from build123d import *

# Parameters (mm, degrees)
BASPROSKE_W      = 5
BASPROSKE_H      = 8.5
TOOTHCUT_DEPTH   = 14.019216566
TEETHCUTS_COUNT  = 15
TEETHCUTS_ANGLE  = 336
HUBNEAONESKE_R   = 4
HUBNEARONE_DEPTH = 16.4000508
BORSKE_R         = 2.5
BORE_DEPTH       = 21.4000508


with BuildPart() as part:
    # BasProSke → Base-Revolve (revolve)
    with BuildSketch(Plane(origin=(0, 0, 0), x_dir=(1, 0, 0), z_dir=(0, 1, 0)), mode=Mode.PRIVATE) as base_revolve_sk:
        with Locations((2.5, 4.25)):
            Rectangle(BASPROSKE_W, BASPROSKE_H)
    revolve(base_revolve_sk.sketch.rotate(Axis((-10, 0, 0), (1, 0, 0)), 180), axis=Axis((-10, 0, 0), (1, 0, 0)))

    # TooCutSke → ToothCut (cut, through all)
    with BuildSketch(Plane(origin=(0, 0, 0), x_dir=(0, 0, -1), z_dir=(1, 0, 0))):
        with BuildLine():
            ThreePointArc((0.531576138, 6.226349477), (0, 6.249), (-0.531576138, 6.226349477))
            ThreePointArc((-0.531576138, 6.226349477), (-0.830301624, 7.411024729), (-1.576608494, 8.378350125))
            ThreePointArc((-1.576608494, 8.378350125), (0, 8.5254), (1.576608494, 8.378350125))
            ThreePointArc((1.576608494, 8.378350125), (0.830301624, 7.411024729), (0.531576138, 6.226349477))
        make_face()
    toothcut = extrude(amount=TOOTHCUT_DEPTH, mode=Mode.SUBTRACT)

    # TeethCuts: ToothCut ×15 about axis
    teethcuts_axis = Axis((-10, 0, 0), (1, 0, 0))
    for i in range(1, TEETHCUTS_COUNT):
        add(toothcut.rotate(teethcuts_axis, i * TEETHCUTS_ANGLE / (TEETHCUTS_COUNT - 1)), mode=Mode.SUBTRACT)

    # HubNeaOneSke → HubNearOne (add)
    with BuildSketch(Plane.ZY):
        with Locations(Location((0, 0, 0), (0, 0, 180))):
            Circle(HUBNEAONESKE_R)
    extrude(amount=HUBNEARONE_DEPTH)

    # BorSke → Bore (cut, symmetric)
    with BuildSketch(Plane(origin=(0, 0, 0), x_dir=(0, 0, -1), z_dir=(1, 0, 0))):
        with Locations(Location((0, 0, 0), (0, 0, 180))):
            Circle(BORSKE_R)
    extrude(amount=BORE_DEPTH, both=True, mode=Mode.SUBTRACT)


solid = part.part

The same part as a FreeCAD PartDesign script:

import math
import FreeCAD as App
import Part
import Sketcher

V = App.Vector
Q = App.Units.Quantity

doc = App.newDocument("Part")
body = doc.addObject("PartDesign::Body", "Body")

# Sketch on XZ plane
sketch1 = body.newObject("Sketcher::SketchObject", "Sketch")
sketch1.AttachmentSupport = (doc.getObject("XZ_Plane"), [""])
sketch1.MapMode = "FlatFace"
sketch1.addGeometry([
    Part.LineSegment(V(0, -8, 0), V(0, 0, 0)),
    Part.LineSegment(V(0, 0, 0), V(5, 0, 0)),
    Part.LineSegment(V(5, 0, 0), V(5, -8, 0)),
    Part.LineSegment(V(5, -8, 0), V(0, -8, 0)),
], False)
sketch1.addConstraint([
    Sketcher.Constraint("Coincident", 0, 2, 1, 1),
    Sketcher.Constraint("Coincident", 1, 2, 2, 1),
    Sketcher.Constraint("Coincident", 2, 2, 3, 1),
    Sketcher.Constraint("Coincident", 3, 2, 0, 1),
    Sketcher.Constraint("Vertical", 0),
    Sketcher.Constraint("Horizontal", 1),
    Sketcher.Constraint("Vertical", 2),
    Sketcher.Constraint("Horizontal", 3),
    Sketcher.Constraint("Coincident", 0, 2, -1, 1),
    Sketcher.Constraint("DistanceX", 1, 1, 1, 2, Q("5 mm")),
    Sketcher.Constraint("DistanceY", 0, 1, 0, 2, Q("8.5 mm")),
])
revolution = body.newObject("PartDesign::Revolution", "Revolution")
revolution.Profile = sketch1
revolution.ReferenceAxis = (sketch1, ["H_Axis"])
revolution.Angle = 360

# Sketch on YZ plane
sketch2 = body.newObject("Sketcher::SketchObject", "Sketch001")
sketch2.AttachmentSupport = (doc.getObject("YZ_Plane"), [""])
sketch2.MapMode = "FlatFace"
sketch2.addGeometry([
    Part.ArcOfCircle(Part.Circle(V(0, 0, 0), V(0, 0, 1), 6.2), math.radians(-4.88), math.radians(4.88)),
    Part.ArcOfCircle(Part.Circle(V(6.1, -3.5, 0), V(0, 0, 1), 3), math.radians(41), math.radians(88)),
    Part.ArcOfCircle(Part.Circle(V(0, 0, 0), V(0, 0, 1), 8.5), math.radians(-11), math.radians(11)),
    Part.ArcOfCircle(Part.Circle(V(6.1, 3.5, 0), V(0, 0, 1), 3), math.radians(-88), math.radians(-41)),
], False)
sketch2.addConstraint([
    Sketcher.Constraint("Coincident", 0, 1, 1, 2),
    Sketcher.Constraint("Coincident", 1, 1, 2, 1),
    Sketcher.Constraint("Coincident", 2, 2, 3, 2),
    Sketcher.Constraint("Coincident", 3, 1, 0, 2),
    Sketcher.Constraint("Coincident", 0, 3, -1, 1),
    Sketcher.Constraint("Coincident", 2, 3, -1, 1),
    Sketcher.Constraint("Equal", 1, 3),
    Sketcher.Constraint("Symmetric", 1, 3, 3, 3, -1),
    Sketcher.Constraint("Radius", 1, Q("3 mm")),
    Sketcher.Constraint("Radius", 0, Q("6.249 mm")),
    Sketcher.Constraint("Radius", 2, Q("8.5254 mm")),
    Sketcher.Constraint("DistanceX", 0, 1, 1, 1, Q("2.152001 mm")),
    Sketcher.Constraint("DistanceX", -1, 1, 1, 3, Q("6.100541 mm")),
])
pocket1 = body.newObject("PartDesign::Pocket", "Pocket")
pocket1.Profile = sketch2
pocket1.Type = "ThroughAll"
pocket1.Reversed = True
doc.recompute()

polarpattern = body.newObject("PartDesign::PolarPattern", "PolarPattern")
polarpattern.Originals = [pocket1]
polarpattern.Axis = (doc.getObject("X_Axis"), [""])
polarpattern.Angle = 360
polarpattern.Occurrences = 15
body.Tip = polarpattern

# Sketch on YZ plane
sketch3 = body.newObject("Sketcher::SketchObject", "Sketch002")
sketch3.AttachmentSupport = (doc.getObject("YZ_Plane"), [""])
sketch3.MapMode = "FlatFace"
sketch3.addGeometry(Part.Circle(V(0, 0, 0), V(0, 0, 1), 4), False)
sketch3.addConstraint([
    Sketcher.Constraint("Coincident", 0, 3, -1, 1),
    Sketcher.Constraint("Diameter", 0, Q("8 mm")),
])
pad1 = body.newObject("PartDesign::Pad", "Pad")
pad1.Profile = sketch3
pad1.Length = 16.400051
pad1.Reversed = True

# Sketch on YZ plane
sketch4 = body.newObject("Sketcher::SketchObject", "Sketch003")
sketch4.AttachmentSupport = (doc.getObject("YZ_Plane"), [""])
sketch4.MapMode = "FlatFace"
sketch4.addGeometry(Part.Circle(V(0, 0, 0), V(0, 0, 1), 2.5), False)
sketch4.addConstraint([
    Sketcher.Constraint("Coincident", 0, 3, -1, 1),
    Sketcher.Constraint("Diameter", 0, Q("5 mm")),
])
pocket2 = body.newObject("PartDesign::Pocket", "Pocket001")
pocket2.Profile = sketch4
pocket2.Length = 42.800102
pocket2.Midplane = True

doc.recompute()
